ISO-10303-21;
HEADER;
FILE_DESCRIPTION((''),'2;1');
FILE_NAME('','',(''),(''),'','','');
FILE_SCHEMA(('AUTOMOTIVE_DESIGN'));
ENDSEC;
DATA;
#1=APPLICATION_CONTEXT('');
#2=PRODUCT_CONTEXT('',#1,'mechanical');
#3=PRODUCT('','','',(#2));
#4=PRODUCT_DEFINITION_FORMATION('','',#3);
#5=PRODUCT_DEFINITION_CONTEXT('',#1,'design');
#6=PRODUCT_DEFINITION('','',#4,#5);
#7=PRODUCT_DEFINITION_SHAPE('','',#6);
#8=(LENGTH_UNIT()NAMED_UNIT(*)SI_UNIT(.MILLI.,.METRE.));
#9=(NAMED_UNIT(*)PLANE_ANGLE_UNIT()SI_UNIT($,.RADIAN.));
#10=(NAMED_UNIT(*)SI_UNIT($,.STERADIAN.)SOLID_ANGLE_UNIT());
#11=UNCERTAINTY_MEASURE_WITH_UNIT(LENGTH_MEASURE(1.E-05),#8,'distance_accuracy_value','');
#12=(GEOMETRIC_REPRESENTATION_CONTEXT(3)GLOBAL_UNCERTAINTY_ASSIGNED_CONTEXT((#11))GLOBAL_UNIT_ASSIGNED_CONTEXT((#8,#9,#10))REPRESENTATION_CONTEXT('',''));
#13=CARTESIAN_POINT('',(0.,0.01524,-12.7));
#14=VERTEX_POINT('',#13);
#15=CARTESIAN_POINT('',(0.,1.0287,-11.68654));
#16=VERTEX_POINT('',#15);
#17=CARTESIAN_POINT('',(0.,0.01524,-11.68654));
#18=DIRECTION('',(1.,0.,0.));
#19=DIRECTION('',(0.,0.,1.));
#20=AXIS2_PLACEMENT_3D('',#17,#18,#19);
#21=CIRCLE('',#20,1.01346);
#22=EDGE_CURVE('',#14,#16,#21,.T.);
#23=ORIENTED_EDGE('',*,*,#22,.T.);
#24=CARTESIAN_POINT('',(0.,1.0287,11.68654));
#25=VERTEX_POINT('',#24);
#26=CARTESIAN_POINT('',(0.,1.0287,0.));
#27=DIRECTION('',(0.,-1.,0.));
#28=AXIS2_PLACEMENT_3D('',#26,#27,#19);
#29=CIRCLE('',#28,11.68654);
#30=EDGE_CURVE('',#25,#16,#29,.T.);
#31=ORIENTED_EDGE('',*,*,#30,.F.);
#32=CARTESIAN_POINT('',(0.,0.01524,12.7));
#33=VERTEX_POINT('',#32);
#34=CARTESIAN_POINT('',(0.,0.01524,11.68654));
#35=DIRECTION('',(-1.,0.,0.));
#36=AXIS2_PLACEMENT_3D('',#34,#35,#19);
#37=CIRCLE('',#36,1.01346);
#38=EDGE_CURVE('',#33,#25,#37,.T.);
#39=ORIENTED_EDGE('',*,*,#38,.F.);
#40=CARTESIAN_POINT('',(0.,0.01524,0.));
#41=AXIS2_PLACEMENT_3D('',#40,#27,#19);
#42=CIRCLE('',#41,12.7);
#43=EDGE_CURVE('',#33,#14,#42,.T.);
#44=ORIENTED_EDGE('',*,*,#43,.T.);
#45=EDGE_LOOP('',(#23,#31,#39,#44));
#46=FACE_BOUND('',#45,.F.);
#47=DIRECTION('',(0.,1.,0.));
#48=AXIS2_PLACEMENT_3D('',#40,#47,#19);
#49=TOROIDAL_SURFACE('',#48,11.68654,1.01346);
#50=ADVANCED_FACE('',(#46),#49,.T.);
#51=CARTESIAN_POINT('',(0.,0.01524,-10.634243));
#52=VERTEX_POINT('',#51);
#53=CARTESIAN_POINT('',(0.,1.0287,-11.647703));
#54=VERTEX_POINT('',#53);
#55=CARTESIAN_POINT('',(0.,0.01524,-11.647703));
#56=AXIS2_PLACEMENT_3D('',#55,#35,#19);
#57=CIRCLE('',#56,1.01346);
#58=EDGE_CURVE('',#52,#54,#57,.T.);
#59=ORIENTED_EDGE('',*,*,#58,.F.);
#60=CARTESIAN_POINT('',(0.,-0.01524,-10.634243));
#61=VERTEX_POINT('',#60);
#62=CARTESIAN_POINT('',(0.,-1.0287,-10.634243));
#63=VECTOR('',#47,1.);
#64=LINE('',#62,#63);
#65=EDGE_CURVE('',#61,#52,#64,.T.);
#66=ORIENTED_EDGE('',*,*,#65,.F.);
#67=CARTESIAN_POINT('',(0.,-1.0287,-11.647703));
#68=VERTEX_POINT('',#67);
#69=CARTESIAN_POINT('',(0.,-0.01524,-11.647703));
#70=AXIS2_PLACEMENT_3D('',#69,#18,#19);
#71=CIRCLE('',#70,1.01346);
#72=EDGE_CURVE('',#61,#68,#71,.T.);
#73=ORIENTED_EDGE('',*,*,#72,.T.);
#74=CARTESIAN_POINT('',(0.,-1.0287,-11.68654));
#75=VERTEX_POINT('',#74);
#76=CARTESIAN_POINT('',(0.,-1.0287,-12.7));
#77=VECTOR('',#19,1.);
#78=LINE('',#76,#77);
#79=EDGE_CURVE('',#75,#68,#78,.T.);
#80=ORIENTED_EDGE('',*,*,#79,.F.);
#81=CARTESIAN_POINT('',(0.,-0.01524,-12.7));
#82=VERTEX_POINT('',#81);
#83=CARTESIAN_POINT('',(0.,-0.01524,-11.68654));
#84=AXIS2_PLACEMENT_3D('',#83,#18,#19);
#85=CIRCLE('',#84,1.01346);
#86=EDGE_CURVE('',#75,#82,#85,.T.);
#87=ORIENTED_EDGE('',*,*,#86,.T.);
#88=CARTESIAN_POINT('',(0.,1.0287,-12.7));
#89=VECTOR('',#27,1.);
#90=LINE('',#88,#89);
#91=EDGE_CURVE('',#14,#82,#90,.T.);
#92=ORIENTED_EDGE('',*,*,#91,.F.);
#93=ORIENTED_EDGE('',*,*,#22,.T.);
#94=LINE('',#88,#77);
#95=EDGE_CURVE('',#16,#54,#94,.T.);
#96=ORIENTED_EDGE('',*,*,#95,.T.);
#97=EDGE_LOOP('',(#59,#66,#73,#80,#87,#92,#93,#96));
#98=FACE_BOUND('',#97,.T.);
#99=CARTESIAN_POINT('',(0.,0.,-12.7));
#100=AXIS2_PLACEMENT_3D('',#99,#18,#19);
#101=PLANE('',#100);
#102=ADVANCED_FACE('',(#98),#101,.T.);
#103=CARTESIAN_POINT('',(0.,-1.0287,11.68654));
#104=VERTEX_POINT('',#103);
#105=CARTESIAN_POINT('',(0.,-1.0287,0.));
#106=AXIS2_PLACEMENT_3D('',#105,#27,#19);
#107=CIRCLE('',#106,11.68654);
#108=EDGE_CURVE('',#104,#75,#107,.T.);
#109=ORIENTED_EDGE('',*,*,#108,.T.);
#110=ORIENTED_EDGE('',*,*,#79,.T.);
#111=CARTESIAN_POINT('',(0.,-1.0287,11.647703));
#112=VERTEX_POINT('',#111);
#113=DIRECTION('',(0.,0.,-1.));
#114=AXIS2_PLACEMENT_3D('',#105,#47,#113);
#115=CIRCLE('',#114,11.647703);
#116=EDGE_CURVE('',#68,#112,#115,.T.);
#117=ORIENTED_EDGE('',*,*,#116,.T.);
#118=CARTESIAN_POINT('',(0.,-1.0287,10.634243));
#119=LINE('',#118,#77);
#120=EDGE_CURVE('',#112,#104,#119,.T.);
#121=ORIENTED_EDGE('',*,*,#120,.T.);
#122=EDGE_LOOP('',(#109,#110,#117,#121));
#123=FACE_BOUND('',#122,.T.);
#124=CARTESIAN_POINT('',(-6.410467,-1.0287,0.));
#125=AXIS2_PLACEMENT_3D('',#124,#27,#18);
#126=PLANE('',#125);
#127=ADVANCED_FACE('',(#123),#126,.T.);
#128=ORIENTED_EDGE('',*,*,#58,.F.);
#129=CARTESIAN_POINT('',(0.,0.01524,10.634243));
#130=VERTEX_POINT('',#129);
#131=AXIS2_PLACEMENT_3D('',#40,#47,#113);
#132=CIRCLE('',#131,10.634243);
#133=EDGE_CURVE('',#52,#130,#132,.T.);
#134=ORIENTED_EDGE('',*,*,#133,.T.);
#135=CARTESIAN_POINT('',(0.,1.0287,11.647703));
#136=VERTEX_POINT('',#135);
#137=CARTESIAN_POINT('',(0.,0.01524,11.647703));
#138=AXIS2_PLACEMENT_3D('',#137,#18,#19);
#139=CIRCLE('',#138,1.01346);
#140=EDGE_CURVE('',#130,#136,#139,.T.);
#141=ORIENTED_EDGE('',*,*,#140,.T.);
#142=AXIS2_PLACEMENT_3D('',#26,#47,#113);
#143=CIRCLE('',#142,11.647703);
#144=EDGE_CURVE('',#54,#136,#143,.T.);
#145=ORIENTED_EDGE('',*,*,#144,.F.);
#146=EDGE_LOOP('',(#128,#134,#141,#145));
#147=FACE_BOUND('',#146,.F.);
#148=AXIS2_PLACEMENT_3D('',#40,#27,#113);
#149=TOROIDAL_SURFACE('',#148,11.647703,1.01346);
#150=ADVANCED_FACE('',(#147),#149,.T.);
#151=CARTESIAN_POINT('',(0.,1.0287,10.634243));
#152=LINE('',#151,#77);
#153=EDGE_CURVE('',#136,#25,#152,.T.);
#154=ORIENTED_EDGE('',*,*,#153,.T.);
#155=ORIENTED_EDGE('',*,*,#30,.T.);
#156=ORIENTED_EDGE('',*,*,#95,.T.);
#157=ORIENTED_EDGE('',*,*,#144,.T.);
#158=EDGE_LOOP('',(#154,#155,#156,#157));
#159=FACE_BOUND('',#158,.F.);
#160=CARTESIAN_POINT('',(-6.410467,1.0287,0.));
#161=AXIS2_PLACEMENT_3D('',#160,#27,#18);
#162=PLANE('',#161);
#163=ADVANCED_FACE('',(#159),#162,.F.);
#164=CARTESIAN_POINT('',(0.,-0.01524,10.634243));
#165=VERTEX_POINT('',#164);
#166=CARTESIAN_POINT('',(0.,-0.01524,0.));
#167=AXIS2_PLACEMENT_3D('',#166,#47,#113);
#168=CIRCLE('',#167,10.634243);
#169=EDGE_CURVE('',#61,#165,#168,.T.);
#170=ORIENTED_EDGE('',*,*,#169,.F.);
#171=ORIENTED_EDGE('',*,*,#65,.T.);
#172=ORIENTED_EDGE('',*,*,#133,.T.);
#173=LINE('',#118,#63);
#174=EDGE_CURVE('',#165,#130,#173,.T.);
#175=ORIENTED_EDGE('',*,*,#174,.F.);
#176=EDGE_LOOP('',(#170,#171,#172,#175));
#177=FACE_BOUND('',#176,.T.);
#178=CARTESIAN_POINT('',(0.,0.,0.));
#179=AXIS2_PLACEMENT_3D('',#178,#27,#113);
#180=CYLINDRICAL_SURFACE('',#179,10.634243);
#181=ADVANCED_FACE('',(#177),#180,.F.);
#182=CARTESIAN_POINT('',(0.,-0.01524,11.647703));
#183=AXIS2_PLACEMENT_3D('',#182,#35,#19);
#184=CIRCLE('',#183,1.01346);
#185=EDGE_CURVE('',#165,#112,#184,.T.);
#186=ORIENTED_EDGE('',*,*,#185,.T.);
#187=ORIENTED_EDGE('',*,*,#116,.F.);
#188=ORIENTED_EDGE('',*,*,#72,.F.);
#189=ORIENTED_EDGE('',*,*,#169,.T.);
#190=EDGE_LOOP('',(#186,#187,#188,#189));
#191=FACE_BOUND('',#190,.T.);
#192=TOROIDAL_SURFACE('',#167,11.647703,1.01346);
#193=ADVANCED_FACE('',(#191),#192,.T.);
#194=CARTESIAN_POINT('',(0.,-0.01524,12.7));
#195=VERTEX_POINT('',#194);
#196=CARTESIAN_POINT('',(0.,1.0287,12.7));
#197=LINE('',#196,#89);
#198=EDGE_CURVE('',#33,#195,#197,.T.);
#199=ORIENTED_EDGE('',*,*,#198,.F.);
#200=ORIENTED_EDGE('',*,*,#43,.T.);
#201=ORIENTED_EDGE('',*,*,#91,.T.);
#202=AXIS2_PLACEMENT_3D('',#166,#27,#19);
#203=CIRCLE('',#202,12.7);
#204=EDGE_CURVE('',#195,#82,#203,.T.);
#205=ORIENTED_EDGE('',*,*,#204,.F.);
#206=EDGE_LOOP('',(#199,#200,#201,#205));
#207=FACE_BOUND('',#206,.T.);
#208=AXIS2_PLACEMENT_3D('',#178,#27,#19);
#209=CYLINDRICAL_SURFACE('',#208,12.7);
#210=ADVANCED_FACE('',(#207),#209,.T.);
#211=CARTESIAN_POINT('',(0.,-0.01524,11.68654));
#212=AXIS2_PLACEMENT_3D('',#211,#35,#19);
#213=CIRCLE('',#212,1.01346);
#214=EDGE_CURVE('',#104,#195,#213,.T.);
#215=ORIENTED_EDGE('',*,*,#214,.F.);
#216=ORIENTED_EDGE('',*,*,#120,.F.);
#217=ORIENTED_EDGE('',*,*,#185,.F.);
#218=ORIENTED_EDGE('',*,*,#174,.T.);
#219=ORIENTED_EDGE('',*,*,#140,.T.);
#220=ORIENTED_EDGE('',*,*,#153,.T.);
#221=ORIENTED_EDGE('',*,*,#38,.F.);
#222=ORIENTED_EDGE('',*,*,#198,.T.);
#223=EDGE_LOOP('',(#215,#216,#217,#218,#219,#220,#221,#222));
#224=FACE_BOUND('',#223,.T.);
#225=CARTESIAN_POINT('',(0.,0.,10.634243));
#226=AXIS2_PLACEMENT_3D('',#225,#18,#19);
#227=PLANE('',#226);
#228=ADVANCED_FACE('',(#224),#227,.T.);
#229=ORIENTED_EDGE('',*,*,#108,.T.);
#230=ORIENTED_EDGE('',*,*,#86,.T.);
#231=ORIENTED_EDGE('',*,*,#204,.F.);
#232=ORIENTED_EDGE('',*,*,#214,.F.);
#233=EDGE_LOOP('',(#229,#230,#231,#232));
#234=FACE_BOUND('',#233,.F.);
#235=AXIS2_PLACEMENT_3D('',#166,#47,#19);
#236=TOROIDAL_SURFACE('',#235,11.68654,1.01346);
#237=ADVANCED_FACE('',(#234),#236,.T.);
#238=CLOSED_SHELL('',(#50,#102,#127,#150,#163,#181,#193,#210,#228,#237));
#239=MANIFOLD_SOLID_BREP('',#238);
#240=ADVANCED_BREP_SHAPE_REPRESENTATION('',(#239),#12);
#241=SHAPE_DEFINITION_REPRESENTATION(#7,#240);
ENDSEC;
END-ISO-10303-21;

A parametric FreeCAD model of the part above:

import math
import FreeCAD as App
import Part
import Sketcher

V = App.Vector
Q = App.Units.Quantity


def edges_at(feature, points):
    """Names of the edges that pass closest to the given points."""
    edges = feature.Shape.Edges
    near = lambda p: min(range(len(edges)), key=lambda i: edges[i].distToShape(Part.Vertex(*p))[0])
    return sorted({f"Edge{near(p) + 1}" for p in points})

doc = App.newDocument("Part")
body = doc.addObject("PartDesign::Body", "Body")

# Sketch on XZ plane
sketch1 = doc.addObject("Sketcher::SketchObject", "Sketch")
body.addObject(sketch1)
sketch1.AttachmentSupport = (doc.XZ_Plane, [""])
sketch1.MapMode = "FlatFace"
sketch1.addGeometry([
    Part.LineSegment(V(0, 10.6, 0), V(0, 12.7, 0)),
    Part.ArcOfCircle(Part.Circle(V(0, 0, 0), V(0, 0, 1), 12.7), math.radians(90), math.radians(270)),
    Part.LineSegment(V(0, -12.7, 0), V(0, -10.6, 0)),
    Part.ArcOfCircle(Part.Circle(V(0, 0, 0), V(0, 0, 1), 10.6), math.radians(90), math.radians(270)),
], False)
sketch1.addConstraint([
    Sketcher.Constraint("Coincident", 0, 2, 1, 1),
    Sketcher.Constraint("Coincident", 1, 2, 2, 1),
    Sketcher.Constraint("Coincident", 2, 2, 3, 2),
    Sketcher.Constraint("Coincident", 3, 1, 0, 1),
    Sketcher.Constraint("Vertical", 0),
    Sketcher.Constraint("Vertical", 2),
    Sketcher.Constraint("Coincident", 1, 3, -1, 1),
    Sketcher.Constraint("Coincident", 3, 3, -1, 1),
    Sketcher.Constraint("PointOnObject", 0, 2, -2),
    Sketcher.Constraint("PointOnObject", 1, 2, -2),
    Sketcher.Constraint("Radius", 1, Q("0.5 in")),
    Sketcher.Constraint("Radius", 3, 10.634243),
])
pad1 = doc.addObject("PartDesign::Pad", "Pad")
body.addObject(pad1)
pad1.Profile = sketch1
pad1.Length = Q("0.081 in")
pad1.Midplane = True
doc.recompute()

fillet = doc.addObject("PartDesign::Fillet", "Fillet")
body.addObject(fillet)
fillet.Base = (pad1, edges_at(pad1, [
    (-12.7, -1.029, 0),
    (-10.634, -1.029, 0),
    (-10.634, 1.029, 0),
    (-12.7, 1.029, 0),
]))
fillet.Radius = Q("0.0399 in")

doc.recompute()
